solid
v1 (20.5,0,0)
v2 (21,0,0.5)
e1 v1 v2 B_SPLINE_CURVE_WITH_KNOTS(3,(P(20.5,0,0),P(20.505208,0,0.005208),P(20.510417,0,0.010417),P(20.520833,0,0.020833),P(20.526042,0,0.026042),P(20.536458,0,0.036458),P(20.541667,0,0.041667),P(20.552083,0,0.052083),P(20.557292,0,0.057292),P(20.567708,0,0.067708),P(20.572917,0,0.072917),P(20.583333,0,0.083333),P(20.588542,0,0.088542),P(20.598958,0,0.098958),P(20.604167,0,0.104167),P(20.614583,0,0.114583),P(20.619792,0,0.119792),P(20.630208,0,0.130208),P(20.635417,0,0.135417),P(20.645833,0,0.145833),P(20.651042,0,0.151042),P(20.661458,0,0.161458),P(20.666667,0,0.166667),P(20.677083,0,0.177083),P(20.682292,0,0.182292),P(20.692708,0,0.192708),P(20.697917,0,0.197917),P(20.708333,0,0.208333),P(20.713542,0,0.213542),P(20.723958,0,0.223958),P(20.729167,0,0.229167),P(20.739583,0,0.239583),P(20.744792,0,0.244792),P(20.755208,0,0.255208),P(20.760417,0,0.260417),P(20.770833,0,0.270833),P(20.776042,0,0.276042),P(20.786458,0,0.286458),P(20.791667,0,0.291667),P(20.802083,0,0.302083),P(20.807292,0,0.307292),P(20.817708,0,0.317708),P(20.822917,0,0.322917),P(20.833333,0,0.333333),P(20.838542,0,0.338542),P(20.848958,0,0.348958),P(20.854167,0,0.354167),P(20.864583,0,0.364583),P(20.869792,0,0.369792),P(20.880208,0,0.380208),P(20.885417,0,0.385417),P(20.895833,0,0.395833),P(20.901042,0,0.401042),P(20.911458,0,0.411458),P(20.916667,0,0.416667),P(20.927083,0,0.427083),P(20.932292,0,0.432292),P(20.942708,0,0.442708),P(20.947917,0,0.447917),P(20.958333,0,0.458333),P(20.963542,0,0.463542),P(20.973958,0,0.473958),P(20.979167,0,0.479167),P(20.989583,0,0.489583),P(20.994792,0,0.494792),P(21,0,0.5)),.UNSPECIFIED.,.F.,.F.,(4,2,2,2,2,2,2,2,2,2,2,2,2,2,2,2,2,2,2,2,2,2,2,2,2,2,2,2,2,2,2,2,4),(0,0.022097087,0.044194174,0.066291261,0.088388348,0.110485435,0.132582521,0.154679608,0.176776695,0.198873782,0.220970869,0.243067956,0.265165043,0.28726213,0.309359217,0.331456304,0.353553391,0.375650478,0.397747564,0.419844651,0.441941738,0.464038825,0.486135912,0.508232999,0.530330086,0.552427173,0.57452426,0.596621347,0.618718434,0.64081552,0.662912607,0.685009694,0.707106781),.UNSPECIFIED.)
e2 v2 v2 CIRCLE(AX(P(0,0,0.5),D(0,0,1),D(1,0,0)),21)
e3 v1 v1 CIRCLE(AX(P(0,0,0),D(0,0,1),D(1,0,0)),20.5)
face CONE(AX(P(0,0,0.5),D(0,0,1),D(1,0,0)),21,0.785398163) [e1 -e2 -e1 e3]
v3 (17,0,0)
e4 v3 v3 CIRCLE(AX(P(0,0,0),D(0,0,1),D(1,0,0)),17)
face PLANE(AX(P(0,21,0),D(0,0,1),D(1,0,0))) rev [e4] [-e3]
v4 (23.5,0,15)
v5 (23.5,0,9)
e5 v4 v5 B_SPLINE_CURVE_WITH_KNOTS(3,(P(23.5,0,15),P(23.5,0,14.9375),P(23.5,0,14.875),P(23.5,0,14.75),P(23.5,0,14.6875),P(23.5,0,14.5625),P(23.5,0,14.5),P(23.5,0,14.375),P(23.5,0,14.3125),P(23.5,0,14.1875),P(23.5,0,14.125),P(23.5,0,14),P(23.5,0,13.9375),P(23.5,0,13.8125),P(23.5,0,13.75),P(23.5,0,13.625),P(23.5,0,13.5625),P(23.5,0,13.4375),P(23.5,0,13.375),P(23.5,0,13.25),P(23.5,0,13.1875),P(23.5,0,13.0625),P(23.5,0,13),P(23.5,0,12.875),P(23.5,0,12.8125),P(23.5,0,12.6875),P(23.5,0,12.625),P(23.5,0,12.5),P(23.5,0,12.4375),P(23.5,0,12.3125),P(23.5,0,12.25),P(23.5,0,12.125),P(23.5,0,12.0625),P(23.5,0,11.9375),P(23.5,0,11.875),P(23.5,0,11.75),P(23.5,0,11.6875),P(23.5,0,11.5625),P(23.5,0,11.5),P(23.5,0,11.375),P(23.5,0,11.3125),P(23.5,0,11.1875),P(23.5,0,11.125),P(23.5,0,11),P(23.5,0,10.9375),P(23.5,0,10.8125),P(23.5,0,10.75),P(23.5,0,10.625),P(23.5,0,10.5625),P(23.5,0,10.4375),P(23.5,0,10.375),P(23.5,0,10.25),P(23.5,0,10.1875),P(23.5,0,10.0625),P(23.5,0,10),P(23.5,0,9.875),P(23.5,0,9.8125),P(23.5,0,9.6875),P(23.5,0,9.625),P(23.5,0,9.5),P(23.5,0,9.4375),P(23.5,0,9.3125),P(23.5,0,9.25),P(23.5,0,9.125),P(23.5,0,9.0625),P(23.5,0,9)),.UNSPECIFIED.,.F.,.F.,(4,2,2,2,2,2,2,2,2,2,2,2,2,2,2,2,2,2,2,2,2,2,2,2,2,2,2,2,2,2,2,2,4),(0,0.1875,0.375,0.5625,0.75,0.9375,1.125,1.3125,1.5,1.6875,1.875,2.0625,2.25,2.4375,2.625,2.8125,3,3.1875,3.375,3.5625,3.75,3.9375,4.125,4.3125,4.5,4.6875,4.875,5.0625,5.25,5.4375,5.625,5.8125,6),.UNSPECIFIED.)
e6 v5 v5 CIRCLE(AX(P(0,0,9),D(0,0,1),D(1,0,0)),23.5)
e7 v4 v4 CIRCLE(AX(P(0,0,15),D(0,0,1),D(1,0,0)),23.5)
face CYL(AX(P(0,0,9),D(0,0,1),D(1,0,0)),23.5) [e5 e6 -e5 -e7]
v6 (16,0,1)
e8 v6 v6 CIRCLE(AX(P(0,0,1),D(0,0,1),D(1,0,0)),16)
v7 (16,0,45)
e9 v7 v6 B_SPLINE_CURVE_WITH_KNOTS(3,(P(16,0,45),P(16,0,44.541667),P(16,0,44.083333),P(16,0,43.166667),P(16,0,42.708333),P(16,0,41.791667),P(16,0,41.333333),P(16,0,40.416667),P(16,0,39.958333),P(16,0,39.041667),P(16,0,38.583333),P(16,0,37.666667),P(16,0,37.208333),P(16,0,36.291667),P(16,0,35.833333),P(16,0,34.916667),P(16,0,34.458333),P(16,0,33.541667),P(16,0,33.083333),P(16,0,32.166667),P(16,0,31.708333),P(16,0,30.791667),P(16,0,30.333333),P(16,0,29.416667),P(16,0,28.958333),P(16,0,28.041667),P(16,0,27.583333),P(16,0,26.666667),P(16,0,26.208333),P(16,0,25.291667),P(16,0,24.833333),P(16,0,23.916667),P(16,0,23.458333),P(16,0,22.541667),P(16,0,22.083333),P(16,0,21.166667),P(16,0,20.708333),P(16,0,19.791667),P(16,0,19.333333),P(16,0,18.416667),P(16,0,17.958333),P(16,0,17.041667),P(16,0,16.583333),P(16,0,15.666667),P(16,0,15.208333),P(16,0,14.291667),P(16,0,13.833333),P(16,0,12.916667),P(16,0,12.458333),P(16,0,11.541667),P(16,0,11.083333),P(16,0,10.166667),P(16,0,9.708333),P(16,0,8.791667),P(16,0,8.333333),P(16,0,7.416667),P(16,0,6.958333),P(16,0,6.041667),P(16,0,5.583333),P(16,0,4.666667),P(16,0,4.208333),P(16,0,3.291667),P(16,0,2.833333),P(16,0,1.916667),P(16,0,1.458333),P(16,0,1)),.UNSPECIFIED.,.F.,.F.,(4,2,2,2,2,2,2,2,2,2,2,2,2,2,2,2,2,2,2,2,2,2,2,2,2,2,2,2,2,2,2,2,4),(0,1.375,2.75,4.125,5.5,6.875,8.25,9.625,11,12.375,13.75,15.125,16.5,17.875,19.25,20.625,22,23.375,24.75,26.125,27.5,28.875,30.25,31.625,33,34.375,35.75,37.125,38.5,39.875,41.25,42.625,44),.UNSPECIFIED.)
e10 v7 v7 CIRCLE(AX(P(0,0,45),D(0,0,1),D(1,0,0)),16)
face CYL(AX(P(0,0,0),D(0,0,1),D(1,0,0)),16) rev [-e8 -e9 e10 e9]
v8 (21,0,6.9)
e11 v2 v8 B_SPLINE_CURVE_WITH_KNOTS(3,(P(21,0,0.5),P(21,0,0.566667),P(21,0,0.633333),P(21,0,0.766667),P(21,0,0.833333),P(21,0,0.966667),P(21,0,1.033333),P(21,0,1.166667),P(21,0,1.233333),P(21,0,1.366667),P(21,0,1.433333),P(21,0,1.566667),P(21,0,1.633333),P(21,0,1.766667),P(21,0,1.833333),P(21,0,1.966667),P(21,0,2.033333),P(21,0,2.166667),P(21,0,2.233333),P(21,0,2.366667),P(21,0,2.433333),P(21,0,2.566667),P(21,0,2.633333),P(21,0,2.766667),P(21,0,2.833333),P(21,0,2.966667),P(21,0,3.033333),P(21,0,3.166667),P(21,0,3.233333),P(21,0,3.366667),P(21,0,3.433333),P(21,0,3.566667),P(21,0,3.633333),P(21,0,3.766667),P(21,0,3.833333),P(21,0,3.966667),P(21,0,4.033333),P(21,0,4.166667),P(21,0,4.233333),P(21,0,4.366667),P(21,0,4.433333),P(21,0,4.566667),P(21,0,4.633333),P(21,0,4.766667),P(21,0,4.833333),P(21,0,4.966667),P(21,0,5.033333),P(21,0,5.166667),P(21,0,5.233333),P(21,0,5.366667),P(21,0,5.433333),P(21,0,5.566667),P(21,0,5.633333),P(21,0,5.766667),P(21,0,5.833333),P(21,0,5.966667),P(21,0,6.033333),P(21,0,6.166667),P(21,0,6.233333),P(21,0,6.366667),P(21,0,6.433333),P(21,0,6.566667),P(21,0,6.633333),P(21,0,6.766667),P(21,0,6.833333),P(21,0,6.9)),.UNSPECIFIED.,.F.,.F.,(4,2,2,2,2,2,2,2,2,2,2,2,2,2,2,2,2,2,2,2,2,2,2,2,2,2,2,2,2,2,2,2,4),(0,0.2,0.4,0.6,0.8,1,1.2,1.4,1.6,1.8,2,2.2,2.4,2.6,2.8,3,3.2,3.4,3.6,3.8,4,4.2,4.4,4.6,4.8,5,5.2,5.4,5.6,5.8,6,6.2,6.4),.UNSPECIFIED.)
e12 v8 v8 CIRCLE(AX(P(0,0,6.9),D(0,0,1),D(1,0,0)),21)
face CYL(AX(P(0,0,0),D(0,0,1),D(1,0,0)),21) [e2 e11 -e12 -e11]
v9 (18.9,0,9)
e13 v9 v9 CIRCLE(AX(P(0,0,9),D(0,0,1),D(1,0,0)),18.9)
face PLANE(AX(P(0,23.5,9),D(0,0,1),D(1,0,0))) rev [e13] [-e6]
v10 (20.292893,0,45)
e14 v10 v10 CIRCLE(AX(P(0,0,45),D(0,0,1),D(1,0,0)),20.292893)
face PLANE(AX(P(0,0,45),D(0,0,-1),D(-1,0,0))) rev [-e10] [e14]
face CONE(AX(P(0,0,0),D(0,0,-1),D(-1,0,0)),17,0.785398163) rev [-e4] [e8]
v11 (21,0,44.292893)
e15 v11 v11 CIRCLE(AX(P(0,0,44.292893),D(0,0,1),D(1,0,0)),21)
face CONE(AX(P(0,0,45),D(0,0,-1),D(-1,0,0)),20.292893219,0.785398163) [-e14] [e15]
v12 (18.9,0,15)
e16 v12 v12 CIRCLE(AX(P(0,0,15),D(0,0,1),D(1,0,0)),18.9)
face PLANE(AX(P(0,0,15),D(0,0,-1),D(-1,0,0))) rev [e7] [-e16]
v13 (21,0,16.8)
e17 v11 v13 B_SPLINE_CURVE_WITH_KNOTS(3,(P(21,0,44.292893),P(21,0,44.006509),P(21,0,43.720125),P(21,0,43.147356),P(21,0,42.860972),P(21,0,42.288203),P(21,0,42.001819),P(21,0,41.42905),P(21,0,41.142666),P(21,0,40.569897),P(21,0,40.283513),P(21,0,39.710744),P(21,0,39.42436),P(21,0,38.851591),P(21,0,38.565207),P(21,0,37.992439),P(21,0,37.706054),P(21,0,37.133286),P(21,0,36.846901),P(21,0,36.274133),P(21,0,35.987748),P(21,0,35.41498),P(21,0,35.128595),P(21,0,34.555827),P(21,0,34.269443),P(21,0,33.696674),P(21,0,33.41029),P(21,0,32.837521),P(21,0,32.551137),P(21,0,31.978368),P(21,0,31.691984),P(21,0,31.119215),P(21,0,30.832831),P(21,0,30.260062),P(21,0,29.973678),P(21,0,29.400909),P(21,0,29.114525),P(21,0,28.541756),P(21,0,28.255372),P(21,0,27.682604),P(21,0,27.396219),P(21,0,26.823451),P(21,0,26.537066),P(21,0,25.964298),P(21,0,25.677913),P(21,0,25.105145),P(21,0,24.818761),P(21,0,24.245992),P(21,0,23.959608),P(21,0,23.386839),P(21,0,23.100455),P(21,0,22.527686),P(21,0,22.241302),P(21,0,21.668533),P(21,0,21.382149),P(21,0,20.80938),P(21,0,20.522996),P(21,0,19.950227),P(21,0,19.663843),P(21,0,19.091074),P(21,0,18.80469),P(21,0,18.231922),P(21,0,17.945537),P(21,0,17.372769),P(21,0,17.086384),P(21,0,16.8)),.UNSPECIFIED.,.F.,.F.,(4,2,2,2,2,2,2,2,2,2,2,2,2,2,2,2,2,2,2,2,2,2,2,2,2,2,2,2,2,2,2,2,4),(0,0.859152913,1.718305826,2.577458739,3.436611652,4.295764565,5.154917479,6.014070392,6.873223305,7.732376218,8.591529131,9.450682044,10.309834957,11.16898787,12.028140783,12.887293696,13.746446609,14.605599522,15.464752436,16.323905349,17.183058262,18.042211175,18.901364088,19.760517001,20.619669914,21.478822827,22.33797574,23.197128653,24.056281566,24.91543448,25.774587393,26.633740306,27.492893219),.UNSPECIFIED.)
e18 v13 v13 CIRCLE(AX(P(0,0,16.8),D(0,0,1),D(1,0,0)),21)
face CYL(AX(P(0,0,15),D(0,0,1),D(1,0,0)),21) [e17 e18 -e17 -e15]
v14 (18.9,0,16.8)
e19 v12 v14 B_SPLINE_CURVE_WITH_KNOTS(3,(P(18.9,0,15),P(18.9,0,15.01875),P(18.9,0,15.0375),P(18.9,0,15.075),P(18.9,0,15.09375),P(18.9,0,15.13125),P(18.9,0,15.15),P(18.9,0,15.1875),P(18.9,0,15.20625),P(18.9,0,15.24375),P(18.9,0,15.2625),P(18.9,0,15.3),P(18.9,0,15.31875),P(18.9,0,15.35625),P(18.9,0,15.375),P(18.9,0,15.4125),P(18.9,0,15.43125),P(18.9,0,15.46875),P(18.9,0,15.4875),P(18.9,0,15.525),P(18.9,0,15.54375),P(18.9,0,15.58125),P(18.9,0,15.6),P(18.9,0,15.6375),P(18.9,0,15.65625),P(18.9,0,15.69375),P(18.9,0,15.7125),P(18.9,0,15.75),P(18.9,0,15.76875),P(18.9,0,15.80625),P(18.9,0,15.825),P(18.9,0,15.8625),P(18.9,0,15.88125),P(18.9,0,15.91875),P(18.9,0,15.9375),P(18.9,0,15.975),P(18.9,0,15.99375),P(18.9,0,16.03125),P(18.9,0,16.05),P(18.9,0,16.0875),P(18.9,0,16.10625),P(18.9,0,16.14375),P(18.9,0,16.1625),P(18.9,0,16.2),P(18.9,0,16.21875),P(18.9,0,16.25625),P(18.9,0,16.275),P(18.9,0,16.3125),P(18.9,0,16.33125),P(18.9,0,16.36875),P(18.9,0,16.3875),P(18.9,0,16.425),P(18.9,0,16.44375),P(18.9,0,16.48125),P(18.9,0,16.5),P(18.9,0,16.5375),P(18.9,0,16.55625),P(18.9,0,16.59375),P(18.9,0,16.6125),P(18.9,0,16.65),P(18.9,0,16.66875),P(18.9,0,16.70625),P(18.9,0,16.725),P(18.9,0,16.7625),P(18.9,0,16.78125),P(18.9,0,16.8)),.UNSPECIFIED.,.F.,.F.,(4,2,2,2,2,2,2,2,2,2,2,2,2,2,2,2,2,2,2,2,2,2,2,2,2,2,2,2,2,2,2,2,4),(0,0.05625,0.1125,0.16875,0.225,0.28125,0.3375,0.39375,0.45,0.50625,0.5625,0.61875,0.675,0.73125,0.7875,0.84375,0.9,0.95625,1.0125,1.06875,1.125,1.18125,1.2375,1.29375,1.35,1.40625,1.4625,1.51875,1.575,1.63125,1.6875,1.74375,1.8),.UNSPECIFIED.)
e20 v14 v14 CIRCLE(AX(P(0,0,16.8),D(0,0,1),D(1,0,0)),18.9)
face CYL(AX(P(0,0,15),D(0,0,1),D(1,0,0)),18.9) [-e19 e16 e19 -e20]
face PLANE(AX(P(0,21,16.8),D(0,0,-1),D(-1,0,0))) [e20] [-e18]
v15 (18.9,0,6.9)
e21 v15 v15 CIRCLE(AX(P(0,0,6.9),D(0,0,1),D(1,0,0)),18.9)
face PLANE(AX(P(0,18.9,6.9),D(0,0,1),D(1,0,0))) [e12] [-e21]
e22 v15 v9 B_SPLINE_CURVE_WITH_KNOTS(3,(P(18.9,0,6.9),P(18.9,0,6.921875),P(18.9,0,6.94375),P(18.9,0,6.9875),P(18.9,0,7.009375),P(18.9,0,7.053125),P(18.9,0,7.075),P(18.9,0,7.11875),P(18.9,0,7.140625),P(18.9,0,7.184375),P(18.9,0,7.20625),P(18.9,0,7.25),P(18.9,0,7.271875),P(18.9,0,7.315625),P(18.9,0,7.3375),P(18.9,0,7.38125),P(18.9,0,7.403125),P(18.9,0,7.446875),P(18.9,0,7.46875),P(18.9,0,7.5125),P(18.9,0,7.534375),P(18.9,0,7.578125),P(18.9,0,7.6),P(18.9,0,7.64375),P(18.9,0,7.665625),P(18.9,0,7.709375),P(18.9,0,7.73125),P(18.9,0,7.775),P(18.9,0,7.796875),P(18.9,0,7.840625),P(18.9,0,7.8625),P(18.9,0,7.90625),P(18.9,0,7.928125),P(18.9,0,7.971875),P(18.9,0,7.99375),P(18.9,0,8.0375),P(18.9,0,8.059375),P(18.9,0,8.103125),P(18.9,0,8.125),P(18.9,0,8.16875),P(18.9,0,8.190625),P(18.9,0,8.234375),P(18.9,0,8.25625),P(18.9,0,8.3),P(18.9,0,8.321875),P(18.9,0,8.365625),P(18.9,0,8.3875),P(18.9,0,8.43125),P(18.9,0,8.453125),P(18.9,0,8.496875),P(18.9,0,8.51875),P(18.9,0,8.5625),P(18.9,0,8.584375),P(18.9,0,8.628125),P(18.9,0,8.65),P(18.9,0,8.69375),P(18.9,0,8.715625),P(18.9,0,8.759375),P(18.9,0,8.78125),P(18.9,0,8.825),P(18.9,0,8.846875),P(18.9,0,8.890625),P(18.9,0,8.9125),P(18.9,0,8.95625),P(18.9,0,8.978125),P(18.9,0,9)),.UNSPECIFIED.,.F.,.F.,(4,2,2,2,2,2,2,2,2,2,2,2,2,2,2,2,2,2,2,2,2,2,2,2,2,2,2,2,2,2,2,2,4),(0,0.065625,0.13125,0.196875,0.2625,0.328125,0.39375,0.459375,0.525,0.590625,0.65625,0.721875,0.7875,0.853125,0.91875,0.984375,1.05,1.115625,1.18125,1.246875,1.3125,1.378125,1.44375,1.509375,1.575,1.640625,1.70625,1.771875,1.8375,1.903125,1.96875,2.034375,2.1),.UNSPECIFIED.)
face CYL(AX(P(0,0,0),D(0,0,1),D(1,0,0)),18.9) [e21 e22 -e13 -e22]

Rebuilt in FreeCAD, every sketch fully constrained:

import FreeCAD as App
import Part
import Sketcher
Q = App.Units.Quantity


def add_polygon(sketch, points):
    """Adds a closed chain of lines whose ends are joined by coincident constraints."""
    first, n = sketch.GeometryCount, len(points)
    for a, b in zip(points, points[1:] + points[:1]):
        sketch.addGeometry(Part.LineSegment(App.Vector(*a, 0), App.Vector(*b, 0)), False)
    for i in range(n):
        sketch.addConstraint(Sketcher.Constraint("Coincident", first + i, 2, first + (i + 1) % n, 1))

doc = App.newDocument("Part")
params = doc.addObject("Spreadsheet::Sheet", "Params")
for row, (alias, value) in enumerate([
    ("sketch1_height", "6 mm"),
    ("sketch1_width", "23.5 mm"),
    ("revolution_angle", "360 deg"),
    ("sketch2_width", "21 mm"),
    ("sketch2_height", "30 mm"),
    ("revolution2_angle", "360 deg"),
    ("sketch3_length", "1 mm"),
    ("groove_angle", "360 deg"),
    ("sketch4_width", "2.1 mm"),
    ("sketch4_height", "1.8 mm"),
    ("groove2_angle", "360 deg"),
    ("sketch5_width", "21 mm"),
    ("sketch5_height", "9 mm"),
    ("revolution3_angle", "360 deg"),
    ("sketch6_width", "16 mm"),
    ("sketch6_width2", "17 mm"),
    ("sketch6_height", "45 mm"),
    ("sketch6_height2", "44 mm"),
    ("groove3_angle", "360 deg"),
    ("sketch7_width", "0.5 mm"),
    ("groove4_angle", "360 deg"),
    ("sketch8_width", "2.1 mm"),
    ("groove5_angle", "360 deg"),
], start=1):
    params.set(f"A{row}", alias)
    params.set(f"B{row}", "=" + value)
    params.setAlias(f"B{row}", alias)

body = doc.addObject("PartDesign::Body", "Body")

# Sketch on YZ plane
sketch1 = body.newObject("Sketcher::SketchObject", "Sketch")
sketch1.AttachmentSupport = (doc.getObject("YZ_Plane"), [""])
sketch1.MapMode = "FlatFace"
add_polygon(sketch1, [(24, 15), (0, 15), (0, 9), (24, 9)])  # lines 0-3
sketch1.addConstraint([
    Sketcher.Constraint("Horizontal", 0),
    Sketcher.Constraint("Vertical", 1),
    Sketcher.Constraint("Horizontal", 2),
    Sketcher.Constraint("Vertical", 3),
    Sketcher.Constraint("PointOnObject", 0, 2, -2),
    Sketcher.Constraint("DistanceY", 1, 2, 1, 1, Q("6 mm")),
    Sketcher.Constraint("DistanceX", 0, 2, 0, 1, Q("23.5 mm")),
    Sketcher.Constraint("DistanceY", -1, 1, 0, 2, Q("15 mm")),
])
sketch1.setExpression("Constraints[9]", "Params.sketch1_height")
sketch1.setExpression("Constraints[10]", "Params.sketch1_width")
revolution = body.newObject("PartDesign::Revolution", "Revolution")
revolution.Profile = sketch1
revolution.ReferenceAxis = (sketch1, ["V_Axis"])
revolution.setExpression("Angle", "Params.revolution_angle")

# Sketch on YZ plane
sketch2 = body.newObject("Sketcher::SketchObject", "Sketch001")
sketch2.AttachmentSupport = (doc.getObject("YZ_Plane"), [""])
sketch2.MapMode = "FlatFace"
add_polygon(sketch2, [(21, 45), (0, 45), (0, 15), (21, 15)])  # lines 0-3
sketch2.addConstraint([
    Sketcher.Constraint("Horizontal", 0),
    Sketcher.Constraint("Vertical", 1),
    Sketcher.Constraint("Horizontal", 2),
    Sketcher.Constraint("Vertical", 3),
    Sketcher.Constraint("PointOnObject", 0, 2, -2),
    Sketcher.Constraint("DistanceX", 0, 2, 0, 1, Q("21 mm")),
    Sketcher.Constraint("DistanceY", 1, 2, 1, 1, Q("30 mm")),
    Sketcher.Constraint("DistanceY", -1, 1, 0, 2, Q("45 mm")),
])
sketch2.setExpression("Constraints[9]", "Params.sketch2_width")
sketch2.setExpression("Constraints[10]", "Params.sketch2_height")
revolution2 = body.newObject("PartDesign::Revolution", "Revolution001")
revolution2.Profile = sketch2
revolution2.ReferenceAxis = (sketch2, ["V_Axis"])
revolution2.setExpression("Angle", "Params.revolution2_angle")

# Sketch on YZ plane
sketch3 = body.newObject("Sketcher::SketchObject", "Sketch002")
sketch3.AttachmentSupport = (doc.getObject("YZ_Plane"), [""])
sketch3.MapMode = "FlatFace"
add_polygon(sketch3, [(20.3, 45), (21, 44.3), (21, 45)])  # lines 0-2
sketch3.addConstraint([
    Sketcher.Constraint("Vertical", 1),
    Sketcher.Constraint("Horizontal", 2),
    Sketcher.Constraint("Equal", 2, 1),
    Sketcher.Constraint("Distance", 0, Q("1 mm")),
    Sketcher.Constraint("DistanceX", -1, 1, 0, 2, Q("21 mm")),
    Sketcher.Constraint("DistanceY", -1, 1, 1, 2, Q("45 mm")),
])
sketch3.setExpression("Constraints[6]", "Params.sketch3_length")
groove = body.newObject("PartDesign::Groove", "Groove")
groove.Profile = sketch3
groove.ReferenceAxis = (sketch3, ["V_Axis"])
groove.setExpression("Angle", "Params.groove_angle")

# Sketch on YZ plane
sketch4 = body.newObject("Sketcher::SketchObject", "Sketch003")
sketch4.AttachmentSupport = (doc.getObject("YZ_Plane"), [""])
sketch4.MapMode = "FlatFace"
add_polygon(sketch4, [(21, 16.8), (18.9, 16.8), (18.9, 15), (21, 15)])  # lines 0-3
sketch4.addConstraint([
    Sketcher.Constraint("Horizontal", 0),
    Sketcher.Constraint("Vertical", 1),
    Sketcher.Constraint("Horizontal", 2),
    Sketcher.Constraint("Vertical", 3),
    Sketcher.Constraint("DistanceX", 0, 2, 0, 1, Q("2.1 mm")),
    Sketcher.Constraint("DistanceY", 1, 2, 1, 1, Q("1.8 mm")),
    Sketcher.Constraint("DistanceY", -1, 1, 1, 2, Q("15 mm")),
    Sketcher.Constraint("DistanceX", -1, 1, 2, 2, Q("21 mm")),
])
sketch4.setExpression("Constraints[8]", "Params.sketch4_width")
sketch4.setExpression("Constraints[9]", "Params.sketch4_height")
groove2 = body.newObject("PartDesign::Groove", "Groove001")
groove2.Profile = sketch4
groove2.ReferenceAxis = (sketch4, ["V_Axis"])
groove2.setExpression("Angle", "Params.groove2_angle")

# Sketch on YZ plane
sketch5 = body.newObject("Sketcher::SketchObject", "Sketch004")
sketch5.AttachmentSupport = (doc.getObject("YZ_Plane"), [""])
sketch5.MapMode = "FlatFace"
add_polygon(sketch5, [(21, 9), (0, 9), (0, 0), (21, 0)])  # lines 0-3
sketch5.addConstraint([
    Sketcher.Constraint("Horizontal", 0),
    Sketcher.Constraint("Vertical", 1),
    Sketcher.Constraint("Horizontal", 2),
    Sketcher.Constraint("Vertical", 3),
    Sketcher.Constraint("Coincident", 1, 2, -1, 1),
    Sketcher.Constraint("DistanceX", 0, 2, 0, 1, Q("21 mm")),
    Sketcher.Constraint("DistanceY", 1, 2, 1, 1, Q("9 mm")),
])
sketch5.setExpression("Constraints[9]", "Params.sketch5_width")
sketch5.setExpression("Constraints[10]", "Params.sketch5_height")
revolution3 = body.newObject("PartDesign::Revolution", "Revolution002")
revolution3.Profile = sketch5
revolution3.ReferenceAxis = (sketch5, ["V_Axis"])
revolution3.setExpression("Angle", "Params.revolution3_angle")

# Sketch on YZ plane
sketch6 = body.newObject("Sketcher::SketchObject", "Sketch005")
sketch6.AttachmentSupport = (doc.getObject("YZ_Plane"), [""])
sketch6.MapMode = "FlatFace"
add_polygon(sketch6, [(16, 45), (0, 45), (0, 0), (17, 0), (16, 1)])  # lines 0-4
sketch6.addConstraint([
    Sketcher.Constraint("Horizontal", 0),
    Sketcher.Constraint("Vertical", 1),
    Sketcher.Constraint("Horizontal", 2),
    Sketcher.Constraint("Vertical", 4),
    Sketcher.Constraint("Coincident", 1, 2, -1, 1),
    Sketcher.Constraint("DistanceX", 0, 2, 0, 1, Q("16 mm")),
    Sketcher.Constraint("DistanceX", 2, 1, 2, 2, Q("17 mm")),
    Sketcher.Constraint("DistanceY", 1, 2, 1, 1, Q("45 mm")),
    Sketcher.Constraint("DistanceY", 4, 1, 4, 2, Q("44 mm")),
])
sketch6.setExpression("Constraints[10]", "Params.sketch6_width")
sketch6.setExpression("Constraints[11]", "Params.sketch6_width2")
sketch6.setExpression("Constraints[12]", "Params.sketch6_height")
sketch6.setExpression("Constraints[13]", "Params.sketch6_height2")
groove3 = body.newObject("PartDesign::Groove", "Groove002")
groove3.Profile = sketch6
groove3.ReferenceAxis = (sketch6, ["V_Axis"])
groove3.setExpression("Angle", "Params.groove3_angle")

# Sketch on YZ plane
sketch7 = body.newObject("Sketcher::SketchObject", "Sketch006")
sketch7.AttachmentSupport = (doc.getObject("YZ_Plane"), [""])
sketch7.MapMode = "FlatFace"
add_polygon(sketch7, [(21, 0.5), (20.5, 0), (21, 0)])  # lines 0-2
sketch7.addConstraint([
    Sketcher.Constraint("Horizontal", 1),
    Sketcher.Constraint("Vertical", 2),
    Sketcher.Constraint("PointOnObject", 0, 2, -1),
    Sketcher.Constraint("Equal", 1, 2),
    Sketcher.Constraint("DistanceX", 1, 1, 1, 2, Q("0.5 mm")),
    Sketcher.Constraint("DistanceX", -1, 1, 1, 2, Q("21 mm")),
])
sketch7.setExpression("Constraints[7]", "Params.sketch7_width")
groove4 = body.newObject("PartDesign::Groove", "Groove003")
groove4.Profile = sketch7
groove4.ReferenceAxis = (sketch7, ["V_Axis"])
groove4.setExpression("Angle", "Params.groove4_angle")

# Sketch on YZ plane
sketch8 = body.newObject("Sketcher::SketchObject", "Sketch007")
sketch8.AttachmentSupport = (doc.getObject("YZ_Plane"), [""])
sketch8.MapMode = "FlatFace"
add_polygon(sketch8, [(21, 9), (18.9, 9), (18.9, 6.9), (21, 6.9)])  # lines 0-3
sketch8.addConstraint([
    Sketcher.Constraint("Horizontal", 0),
    Sketcher.Constraint("Vertical", 1),
    Sketcher.Constraint("Horizontal", 2),
    Sketcher.Constraint("Vertical", 3),
    Sketcher.Constraint("Equal", 2, 1),
    Sketcher.Constraint("DistanceX", 0, 2, 0, 1, Q("2.1 mm")),
    Sketcher.Constraint("DistanceY", -1, 1, 0, 2, Q("9 mm")),
    Sketcher.Constraint("DistanceX", -1, 1, 2, 2, Q("21 mm")),
])
sketch8.setExpression("Constraints[9]", "Params.sketch8_width")
groove5 = body.newObject("PartDesign::Groove", "Groove004")
groove5.Profile = sketch8
groove5.ReferenceAxis = (sketch8, ["V_Axis"])
groove5.setExpression("Angle", "Params.groove5_angle")

doc.recompute()
